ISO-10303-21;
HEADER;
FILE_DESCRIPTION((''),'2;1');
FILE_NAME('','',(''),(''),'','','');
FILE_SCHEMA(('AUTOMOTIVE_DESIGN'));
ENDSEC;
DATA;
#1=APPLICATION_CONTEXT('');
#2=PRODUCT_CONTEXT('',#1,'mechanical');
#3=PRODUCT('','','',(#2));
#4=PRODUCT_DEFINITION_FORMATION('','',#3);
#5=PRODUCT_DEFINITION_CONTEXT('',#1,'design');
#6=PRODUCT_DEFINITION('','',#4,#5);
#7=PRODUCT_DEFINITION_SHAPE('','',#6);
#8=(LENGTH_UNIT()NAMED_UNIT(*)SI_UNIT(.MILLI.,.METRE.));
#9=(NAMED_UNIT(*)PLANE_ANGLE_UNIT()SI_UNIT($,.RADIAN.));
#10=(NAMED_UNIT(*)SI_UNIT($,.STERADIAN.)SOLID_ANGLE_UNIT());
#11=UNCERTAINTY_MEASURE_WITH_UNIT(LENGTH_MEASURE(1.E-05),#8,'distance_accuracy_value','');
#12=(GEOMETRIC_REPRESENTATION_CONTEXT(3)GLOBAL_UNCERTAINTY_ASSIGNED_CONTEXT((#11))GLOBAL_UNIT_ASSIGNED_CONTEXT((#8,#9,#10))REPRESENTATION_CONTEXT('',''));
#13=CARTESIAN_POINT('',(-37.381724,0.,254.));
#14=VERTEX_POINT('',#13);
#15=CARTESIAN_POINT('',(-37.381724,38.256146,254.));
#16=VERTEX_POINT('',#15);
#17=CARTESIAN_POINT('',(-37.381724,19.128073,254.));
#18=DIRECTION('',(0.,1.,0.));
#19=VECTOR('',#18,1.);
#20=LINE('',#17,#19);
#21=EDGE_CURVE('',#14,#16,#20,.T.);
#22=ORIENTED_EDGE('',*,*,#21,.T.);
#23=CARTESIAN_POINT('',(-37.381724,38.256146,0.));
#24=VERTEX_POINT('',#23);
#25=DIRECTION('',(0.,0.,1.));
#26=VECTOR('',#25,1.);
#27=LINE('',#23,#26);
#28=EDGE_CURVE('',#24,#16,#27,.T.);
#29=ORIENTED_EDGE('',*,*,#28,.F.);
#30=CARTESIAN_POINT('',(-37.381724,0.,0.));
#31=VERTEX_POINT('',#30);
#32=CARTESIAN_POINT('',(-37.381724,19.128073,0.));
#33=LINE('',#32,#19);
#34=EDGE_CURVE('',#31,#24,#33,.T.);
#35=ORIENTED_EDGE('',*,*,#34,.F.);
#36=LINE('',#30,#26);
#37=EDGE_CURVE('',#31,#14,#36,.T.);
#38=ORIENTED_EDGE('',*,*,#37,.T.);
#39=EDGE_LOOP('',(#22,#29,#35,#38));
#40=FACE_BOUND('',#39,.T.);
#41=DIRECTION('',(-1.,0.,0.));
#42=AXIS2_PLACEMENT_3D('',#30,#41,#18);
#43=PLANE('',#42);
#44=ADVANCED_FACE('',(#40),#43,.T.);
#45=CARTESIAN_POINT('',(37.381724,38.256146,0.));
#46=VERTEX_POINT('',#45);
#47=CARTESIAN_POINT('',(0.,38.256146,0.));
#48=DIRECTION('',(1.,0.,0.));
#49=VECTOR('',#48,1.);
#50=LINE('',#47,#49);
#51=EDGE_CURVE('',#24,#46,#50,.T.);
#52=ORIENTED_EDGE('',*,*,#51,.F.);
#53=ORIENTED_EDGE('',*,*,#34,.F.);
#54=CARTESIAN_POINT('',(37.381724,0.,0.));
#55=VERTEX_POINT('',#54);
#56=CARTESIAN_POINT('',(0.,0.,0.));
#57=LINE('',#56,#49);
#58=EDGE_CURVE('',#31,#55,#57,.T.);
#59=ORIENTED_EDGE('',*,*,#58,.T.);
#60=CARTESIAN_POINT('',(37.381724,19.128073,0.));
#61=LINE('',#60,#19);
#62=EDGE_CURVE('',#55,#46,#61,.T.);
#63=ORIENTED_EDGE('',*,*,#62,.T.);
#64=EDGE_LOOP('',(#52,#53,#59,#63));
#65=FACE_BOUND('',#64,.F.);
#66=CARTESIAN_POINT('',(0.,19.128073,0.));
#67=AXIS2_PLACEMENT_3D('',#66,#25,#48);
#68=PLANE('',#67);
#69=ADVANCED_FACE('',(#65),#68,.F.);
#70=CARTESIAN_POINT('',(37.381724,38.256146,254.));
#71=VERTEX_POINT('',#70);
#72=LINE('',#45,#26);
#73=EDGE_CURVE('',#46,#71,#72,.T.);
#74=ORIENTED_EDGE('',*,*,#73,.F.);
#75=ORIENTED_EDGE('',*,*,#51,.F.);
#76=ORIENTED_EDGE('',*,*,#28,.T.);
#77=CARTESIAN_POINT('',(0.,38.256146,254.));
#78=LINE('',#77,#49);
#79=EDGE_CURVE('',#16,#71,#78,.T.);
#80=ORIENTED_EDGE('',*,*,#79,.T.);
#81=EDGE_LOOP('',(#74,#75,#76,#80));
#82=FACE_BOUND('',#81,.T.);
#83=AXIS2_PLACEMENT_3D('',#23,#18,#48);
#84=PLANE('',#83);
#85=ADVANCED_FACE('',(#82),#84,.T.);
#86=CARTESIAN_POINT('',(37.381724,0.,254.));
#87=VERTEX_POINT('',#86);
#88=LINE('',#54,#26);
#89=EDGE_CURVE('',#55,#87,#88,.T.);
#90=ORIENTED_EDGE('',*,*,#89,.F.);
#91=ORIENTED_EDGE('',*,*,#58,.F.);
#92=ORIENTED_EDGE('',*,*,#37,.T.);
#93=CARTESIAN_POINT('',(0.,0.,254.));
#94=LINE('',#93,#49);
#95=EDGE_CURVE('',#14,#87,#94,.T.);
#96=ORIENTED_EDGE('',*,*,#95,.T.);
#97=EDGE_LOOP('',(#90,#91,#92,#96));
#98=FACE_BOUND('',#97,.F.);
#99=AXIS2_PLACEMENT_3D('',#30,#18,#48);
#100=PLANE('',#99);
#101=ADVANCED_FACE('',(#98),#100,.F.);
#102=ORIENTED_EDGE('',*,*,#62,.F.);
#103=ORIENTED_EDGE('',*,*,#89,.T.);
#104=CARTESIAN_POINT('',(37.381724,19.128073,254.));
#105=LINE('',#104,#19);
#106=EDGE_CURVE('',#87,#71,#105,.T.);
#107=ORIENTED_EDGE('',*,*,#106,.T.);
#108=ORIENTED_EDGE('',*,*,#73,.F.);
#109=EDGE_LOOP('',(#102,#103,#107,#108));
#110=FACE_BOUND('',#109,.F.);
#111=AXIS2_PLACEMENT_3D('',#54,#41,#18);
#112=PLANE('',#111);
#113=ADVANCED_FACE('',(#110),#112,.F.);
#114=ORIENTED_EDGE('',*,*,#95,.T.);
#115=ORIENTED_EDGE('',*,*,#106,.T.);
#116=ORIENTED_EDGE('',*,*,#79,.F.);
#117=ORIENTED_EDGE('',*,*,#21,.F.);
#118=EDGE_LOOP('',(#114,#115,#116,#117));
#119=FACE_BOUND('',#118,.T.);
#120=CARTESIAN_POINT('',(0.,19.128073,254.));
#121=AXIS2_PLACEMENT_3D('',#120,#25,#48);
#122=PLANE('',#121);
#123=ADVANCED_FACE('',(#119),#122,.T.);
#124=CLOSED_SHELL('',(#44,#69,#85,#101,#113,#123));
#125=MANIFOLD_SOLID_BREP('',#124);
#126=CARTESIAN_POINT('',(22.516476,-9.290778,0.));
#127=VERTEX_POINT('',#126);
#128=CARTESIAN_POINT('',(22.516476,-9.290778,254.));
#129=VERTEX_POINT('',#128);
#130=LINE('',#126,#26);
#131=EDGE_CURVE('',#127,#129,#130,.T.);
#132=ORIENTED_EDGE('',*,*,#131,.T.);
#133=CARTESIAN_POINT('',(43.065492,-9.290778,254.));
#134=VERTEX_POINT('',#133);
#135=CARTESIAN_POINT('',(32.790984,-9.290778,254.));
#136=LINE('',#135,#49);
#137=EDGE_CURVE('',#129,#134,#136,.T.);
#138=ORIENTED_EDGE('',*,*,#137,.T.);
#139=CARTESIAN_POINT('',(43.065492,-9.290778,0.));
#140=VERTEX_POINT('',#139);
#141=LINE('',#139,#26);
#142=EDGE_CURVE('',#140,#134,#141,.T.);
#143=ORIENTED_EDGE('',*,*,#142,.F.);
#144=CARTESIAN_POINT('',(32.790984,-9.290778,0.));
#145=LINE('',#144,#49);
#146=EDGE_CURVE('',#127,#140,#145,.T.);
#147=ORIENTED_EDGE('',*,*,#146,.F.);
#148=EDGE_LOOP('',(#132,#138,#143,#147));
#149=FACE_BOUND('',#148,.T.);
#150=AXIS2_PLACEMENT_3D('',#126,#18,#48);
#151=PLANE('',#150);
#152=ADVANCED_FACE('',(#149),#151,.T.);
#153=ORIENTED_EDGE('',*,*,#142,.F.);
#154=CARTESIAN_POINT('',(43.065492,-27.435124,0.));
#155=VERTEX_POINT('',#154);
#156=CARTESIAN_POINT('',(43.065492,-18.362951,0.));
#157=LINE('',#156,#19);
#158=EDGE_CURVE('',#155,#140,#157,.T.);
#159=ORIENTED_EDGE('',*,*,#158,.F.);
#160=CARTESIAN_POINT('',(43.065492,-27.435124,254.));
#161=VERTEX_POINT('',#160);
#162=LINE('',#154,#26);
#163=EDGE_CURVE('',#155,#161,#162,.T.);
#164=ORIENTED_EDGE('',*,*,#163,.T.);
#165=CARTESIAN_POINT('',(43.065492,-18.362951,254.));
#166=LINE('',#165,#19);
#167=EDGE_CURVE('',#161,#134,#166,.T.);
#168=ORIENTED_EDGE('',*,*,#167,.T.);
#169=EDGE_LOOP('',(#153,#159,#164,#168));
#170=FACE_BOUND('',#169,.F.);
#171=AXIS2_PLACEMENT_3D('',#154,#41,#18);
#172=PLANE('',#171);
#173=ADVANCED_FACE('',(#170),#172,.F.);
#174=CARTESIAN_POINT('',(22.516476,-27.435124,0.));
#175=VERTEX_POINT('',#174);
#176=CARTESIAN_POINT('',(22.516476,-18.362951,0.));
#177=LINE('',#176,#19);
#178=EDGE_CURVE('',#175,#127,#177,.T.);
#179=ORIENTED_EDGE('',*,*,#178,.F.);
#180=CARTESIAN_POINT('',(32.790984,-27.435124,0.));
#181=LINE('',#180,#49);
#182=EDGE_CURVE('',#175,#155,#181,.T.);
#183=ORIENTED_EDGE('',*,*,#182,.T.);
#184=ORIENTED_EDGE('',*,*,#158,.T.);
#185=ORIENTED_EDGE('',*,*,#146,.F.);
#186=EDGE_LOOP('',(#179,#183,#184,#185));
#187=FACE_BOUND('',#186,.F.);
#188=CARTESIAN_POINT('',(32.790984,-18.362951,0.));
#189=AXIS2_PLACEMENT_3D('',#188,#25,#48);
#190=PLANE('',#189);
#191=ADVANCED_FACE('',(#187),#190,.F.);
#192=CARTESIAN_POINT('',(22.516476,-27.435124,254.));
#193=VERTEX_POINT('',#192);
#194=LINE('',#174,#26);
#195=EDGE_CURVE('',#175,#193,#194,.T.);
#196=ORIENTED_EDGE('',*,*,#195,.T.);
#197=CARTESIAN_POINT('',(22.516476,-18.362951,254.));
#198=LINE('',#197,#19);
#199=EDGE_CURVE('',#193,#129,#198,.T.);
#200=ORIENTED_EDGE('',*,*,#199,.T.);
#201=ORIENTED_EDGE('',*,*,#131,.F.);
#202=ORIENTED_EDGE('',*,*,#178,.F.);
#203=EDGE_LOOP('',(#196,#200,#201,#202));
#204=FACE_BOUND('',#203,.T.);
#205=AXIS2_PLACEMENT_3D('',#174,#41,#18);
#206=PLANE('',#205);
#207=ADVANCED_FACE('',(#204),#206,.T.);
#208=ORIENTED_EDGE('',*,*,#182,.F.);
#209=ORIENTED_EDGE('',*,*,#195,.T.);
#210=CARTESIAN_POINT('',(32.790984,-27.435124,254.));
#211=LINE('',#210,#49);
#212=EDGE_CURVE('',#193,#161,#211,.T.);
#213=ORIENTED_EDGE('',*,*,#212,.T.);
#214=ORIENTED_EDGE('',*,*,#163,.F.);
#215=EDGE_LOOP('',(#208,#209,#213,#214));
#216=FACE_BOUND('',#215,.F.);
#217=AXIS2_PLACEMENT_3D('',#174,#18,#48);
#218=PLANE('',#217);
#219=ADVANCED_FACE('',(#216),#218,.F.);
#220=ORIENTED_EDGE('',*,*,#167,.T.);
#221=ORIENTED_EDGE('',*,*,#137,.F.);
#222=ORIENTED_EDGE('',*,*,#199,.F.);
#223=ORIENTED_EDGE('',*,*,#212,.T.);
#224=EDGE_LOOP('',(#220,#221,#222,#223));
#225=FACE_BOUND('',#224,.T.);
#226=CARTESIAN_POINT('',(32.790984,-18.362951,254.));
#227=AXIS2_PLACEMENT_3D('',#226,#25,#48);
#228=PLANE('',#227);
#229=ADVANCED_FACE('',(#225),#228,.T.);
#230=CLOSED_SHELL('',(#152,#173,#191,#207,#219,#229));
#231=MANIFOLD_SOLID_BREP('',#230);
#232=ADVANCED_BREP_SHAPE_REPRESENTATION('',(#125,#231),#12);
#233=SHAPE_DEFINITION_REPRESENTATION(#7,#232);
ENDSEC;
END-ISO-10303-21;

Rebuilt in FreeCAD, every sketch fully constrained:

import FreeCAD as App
import Part
import Sketcher
Q = App.Units.Quantity


def add_polygon(sketch, points):
    """Adds a closed chain of lines whose ends are joined by coincident constraints."""
    first, n = sketch.GeometryCount, len(points)
    for a, b in zip(points, points[1:] + points[:1]):
        sketch.addGeometry(Part.LineSegment(App.Vector(*a, 0), App.Vector(*b, 0)), False)
    for i in range(n):
        sketch.addConstraint(Sketcher.Constraint("Coincident", first + i, 2, first + (i + 1) % n, 1))

doc = App.newDocument("Part")
body = doc.addObject("PartDesign::Body", "Body")
body.AllowCompound = True

# Sketch on XY plane
sketch1 = body.newObject("Sketcher::SketchObject", "Sketch")
sketch1.AttachmentSupport = (doc.getObject("XY_Plane"), [""])
sketch1.MapMode = "FlatFace"
add_polygon(sketch1, [(-37, 38), (-37, 0), (37, 0), (37, 38)])  # lines 0-3
add_polygon(sketch1, [(23, -9), (23, -27), (43, -27), (43, -9)])  # lines 4-7
sketch1.addConstraint([
    Sketcher.Constraint("Vertical", 0),
    Sketcher.Constraint("Horizontal", 1),
    Sketcher.Constraint("Vertical", 2),
    Sketcher.Constraint("Horizontal", 3),
    Sketcher.Constraint("Vertical", 4),
    Sketcher.Constraint("Horizontal", 5),
    Sketcher.Constraint("Vertical", 6),
    Sketcher.Constraint("Horizontal", 7),
    Sketcher.Constraint("Symmetric", 0, 2, 1, 2, -1, 1),
    Sketcher.Constraint("DistanceX", 0, 2, 4, 2, 59.8982),
    Sketcher.Constraint("DistanceX", 1, 1, 1, 2, 74.763448),
    Sketcher.Constraint("DistanceX", 5, 1, 5, 2, 20.549016),
    Sketcher.Constraint("DistanceY", 0, 2, 0, 1, 38.256146),
    Sketcher.Constraint("DistanceY", 4, 2, 4, 1, 18.144346),
    Sketcher.Constraint("DistanceY", 4, 2, 2, 2, 65.69127),
])
pad1 = body.newObject("PartDesign::Pad", "Pad")
pad1.Profile = sketch1
pad1.Length = Q("10 in")

doc.recompute()
